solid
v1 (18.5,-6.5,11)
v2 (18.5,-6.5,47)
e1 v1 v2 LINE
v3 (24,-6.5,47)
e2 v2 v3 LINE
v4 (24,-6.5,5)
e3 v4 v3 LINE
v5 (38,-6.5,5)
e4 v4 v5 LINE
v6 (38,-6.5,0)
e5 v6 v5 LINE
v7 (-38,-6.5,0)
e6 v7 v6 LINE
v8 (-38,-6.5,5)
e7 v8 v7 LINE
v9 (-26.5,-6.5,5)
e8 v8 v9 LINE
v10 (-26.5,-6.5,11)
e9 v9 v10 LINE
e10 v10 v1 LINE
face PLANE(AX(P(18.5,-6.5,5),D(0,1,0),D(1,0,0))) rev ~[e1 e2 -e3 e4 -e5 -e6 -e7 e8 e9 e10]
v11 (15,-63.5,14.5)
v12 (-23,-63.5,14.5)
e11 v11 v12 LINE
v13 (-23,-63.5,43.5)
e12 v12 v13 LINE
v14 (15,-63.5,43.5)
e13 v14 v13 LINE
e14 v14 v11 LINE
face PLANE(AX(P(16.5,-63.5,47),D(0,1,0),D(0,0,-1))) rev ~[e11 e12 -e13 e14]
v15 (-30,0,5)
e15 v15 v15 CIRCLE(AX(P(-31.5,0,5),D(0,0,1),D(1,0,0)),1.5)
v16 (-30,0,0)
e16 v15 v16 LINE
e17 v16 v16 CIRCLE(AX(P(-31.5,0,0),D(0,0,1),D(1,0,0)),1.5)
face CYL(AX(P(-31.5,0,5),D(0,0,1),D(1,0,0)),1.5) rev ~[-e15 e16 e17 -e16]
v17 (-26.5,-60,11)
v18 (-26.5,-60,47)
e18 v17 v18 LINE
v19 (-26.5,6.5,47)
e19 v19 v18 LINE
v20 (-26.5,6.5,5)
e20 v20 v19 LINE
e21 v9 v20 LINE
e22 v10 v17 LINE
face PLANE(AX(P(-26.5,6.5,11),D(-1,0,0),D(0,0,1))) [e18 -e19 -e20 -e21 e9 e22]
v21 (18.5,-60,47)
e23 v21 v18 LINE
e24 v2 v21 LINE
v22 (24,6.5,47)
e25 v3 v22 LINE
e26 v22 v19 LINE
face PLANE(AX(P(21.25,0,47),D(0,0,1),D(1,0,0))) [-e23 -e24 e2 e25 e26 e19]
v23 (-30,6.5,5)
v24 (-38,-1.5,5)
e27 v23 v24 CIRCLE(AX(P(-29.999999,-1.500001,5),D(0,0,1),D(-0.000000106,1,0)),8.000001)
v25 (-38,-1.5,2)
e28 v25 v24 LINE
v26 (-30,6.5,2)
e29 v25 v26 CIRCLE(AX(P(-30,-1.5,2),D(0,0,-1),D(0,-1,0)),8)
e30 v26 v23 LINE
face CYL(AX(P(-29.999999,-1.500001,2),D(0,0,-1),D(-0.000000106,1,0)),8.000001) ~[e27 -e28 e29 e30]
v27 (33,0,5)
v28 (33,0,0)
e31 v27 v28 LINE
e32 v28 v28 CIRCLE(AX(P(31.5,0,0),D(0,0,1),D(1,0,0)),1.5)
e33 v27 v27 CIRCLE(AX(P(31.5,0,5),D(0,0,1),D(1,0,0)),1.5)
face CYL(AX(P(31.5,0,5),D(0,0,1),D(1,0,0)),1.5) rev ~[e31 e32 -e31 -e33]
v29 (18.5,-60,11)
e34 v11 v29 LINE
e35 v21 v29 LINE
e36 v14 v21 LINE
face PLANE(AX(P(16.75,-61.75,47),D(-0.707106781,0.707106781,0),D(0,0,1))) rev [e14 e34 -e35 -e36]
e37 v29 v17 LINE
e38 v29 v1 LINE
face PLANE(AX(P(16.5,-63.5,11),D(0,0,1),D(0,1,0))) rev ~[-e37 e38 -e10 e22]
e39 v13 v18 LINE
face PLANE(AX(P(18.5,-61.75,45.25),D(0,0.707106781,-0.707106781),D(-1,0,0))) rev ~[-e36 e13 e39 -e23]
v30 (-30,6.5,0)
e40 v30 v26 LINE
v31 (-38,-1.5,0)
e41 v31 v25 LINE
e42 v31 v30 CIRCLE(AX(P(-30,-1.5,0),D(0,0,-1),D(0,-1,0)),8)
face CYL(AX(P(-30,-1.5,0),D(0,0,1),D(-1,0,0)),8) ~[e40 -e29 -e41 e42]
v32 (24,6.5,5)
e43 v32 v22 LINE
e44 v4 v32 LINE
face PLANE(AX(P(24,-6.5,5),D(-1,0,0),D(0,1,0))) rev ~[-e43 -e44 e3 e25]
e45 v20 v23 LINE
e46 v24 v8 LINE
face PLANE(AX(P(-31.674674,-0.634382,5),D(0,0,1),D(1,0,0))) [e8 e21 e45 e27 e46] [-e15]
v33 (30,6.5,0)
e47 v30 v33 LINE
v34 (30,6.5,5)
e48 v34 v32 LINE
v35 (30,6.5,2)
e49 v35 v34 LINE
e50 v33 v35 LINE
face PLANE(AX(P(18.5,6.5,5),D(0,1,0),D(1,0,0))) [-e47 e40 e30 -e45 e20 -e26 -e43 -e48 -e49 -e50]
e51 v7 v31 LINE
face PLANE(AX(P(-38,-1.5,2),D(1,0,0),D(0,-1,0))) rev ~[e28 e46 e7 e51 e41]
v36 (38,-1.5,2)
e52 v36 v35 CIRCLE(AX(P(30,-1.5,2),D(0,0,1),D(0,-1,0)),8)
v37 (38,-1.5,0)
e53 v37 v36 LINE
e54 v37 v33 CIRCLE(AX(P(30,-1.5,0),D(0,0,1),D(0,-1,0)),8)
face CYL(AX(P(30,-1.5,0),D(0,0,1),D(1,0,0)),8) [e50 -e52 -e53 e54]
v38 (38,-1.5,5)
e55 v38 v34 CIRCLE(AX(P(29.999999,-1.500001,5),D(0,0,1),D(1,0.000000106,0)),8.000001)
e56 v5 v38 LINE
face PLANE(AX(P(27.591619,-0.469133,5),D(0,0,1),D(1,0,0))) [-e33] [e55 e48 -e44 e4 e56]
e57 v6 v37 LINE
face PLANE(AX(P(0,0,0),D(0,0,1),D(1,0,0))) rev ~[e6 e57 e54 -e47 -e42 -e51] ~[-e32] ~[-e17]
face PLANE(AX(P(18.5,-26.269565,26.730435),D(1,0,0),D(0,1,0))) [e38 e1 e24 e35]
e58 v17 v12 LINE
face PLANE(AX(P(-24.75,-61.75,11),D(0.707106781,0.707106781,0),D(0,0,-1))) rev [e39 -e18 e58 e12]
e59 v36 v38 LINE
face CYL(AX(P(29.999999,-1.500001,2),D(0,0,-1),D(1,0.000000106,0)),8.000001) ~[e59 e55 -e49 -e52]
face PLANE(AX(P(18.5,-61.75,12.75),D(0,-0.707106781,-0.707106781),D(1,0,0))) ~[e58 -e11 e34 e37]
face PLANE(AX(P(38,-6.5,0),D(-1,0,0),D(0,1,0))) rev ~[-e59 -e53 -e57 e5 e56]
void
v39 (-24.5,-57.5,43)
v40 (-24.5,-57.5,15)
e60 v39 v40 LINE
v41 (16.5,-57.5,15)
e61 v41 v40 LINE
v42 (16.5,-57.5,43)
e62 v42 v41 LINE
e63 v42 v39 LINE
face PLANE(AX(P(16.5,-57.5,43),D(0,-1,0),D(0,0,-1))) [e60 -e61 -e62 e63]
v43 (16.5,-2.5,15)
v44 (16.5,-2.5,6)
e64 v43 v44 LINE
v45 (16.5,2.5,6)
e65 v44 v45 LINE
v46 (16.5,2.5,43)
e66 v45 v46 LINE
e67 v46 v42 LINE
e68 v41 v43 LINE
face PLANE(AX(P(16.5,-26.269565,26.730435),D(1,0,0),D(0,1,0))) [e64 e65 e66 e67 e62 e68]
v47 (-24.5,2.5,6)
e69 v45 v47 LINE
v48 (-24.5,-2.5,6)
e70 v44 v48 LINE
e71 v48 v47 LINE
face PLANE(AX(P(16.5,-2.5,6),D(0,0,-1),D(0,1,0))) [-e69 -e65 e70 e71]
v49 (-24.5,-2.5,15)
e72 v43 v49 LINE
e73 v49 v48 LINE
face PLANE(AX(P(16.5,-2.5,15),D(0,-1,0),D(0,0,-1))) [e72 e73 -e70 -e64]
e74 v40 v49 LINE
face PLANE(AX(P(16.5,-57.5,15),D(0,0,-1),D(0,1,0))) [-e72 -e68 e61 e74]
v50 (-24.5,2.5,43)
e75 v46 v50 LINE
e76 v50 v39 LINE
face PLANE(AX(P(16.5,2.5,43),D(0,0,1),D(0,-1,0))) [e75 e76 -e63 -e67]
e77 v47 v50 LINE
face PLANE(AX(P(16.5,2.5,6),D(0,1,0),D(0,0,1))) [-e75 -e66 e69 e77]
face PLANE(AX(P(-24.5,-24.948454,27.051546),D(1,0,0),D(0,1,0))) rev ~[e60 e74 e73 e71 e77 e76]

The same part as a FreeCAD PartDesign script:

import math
import FreeCAD as App
import Part
import Sketcher
Q = App.Units.Quantity


def edges_at(feature, points):
    """Names of the edges that pass closest to the given points."""
    edges = feature.Shape.Edges
    near = lambda p: min(range(len(edges)), key=lambda i: edges[i].distToShape(Part.Vertex(*p))[0])
    return sorted({f"Edge{near(p) + 1}" for p in points})

doc = App.newDocument("Part")
body = doc.addObject("PartDesign::Body", "Body")

# Sketch on XY plane
sketch1 = doc.addObject("Sketcher::SketchObject", "Sketch")
body.addObject(sketch1)
sketch1.AttachmentSupport = (doc.XY_Plane, [""])
sketch1.MapMode = "FlatFace"
sketch1.addGeometry(Part.LineSegment(App.Vector(-38, 6, 0), App.Vector(-38, -6, 0)), False)
sketch1.addGeometry(Part.LineSegment(App.Vector(-38, -6, 0), App.Vector(38, -6, 0)), False)
sketch1.addGeometry(Part.LineSegment(App.Vector(38, -6, 0), App.Vector(38, 6, 0)), False)
sketch1.addGeometry(Part.LineSegment(App.Vector(38, 6, 0), App.Vector(-38, 6, 0)), False)
sketch1.addConstraint(Sketcher.Constraint("Coincident", 0, 2, 1, 1))
sketch1.addConstraint(Sketcher.Constraint("Coincident", 1, 2, 2, 1))
sketch1.addConstraint(Sketcher.Constraint("Coincident", 2, 2, 3, 1))
sketch1.addConstraint(Sketcher.Constraint("Coincident", 3, 2, 0, 1))
sketch1.addConstraint(Sketcher.Constraint("Vertical", 0))
sketch1.addConstraint(Sketcher.Constraint("Horizontal", 1))
sketch1.addConstraint(Sketcher.Constraint("Vertical", 2))
sketch1.addConstraint(Sketcher.Constraint("Horizontal", 3))
sketch1.addConstraint(Sketcher.Constraint("Symmetric", 0, 2, 2, 2, -1, 1))
sketch1.addConstraint(Sketcher.Constraint("DistanceX", 1, 1, 1, 2, Q("76 mm")))
sketch1.addConstraint(Sketcher.Constraint("DistanceY", 0, 2, 0, 1, Q("13 mm")))
pad1 = doc.addObject("PartDesign::Pad", "Pad")
body.addObject(pad1)
pad1.Profile = sketch1
pad1.Length = 2
doc.recompute()

fillet = doc.addObject("PartDesign::Fillet", "Fillet")
body.addObject(fillet)
fillet.Base = (pad1, edges_at(pad1, [(-38, 6.5, 1), (38, 6.5, 1)]))
fillet.Radius = 8

# Sketch on XY plane
sketch2 = doc.addObject("Sketcher::SketchObject", "Sketch001")
body.addObject(sketch2)
sketch2.AttachmentSupport = (doc.XY_Plane, [""])
sketch2.MapMode = "FlatFace"
sketch2.AttachmentOffset = App.Placement(App.Vector(0, 0, 2), App.Rotation())
sketch2.addGeometry(Part.LineSegment(App.Vector(-26, 6, 0), App.Vector(-26, -6, 0)), False)
sketch2.addGeometry(Part.LineSegment(App.Vector(-26, -6, 0), App.Vector(16, -6, 0)), False)
sketch2.addGeometry(Part.LineSegment(App.Vector(16, -6, 0), App.Vector(16, 6, 0)), False)
sketch2.addGeometry(Part.LineSegment(App.Vector(16, 6, 0), App.Vector(-26, 6, 0)), False)
sketch2.addConstraint(Sketcher.Constraint("Coincident", 0, 2, 1, 1))
sketch2.addConstraint(Sketcher.Constraint("Coincident", 1, 2, 2, 1))
sketch2.addConstraint(Sketcher.Constraint("Coincident", 2, 2, 3, 1))
sketch2.addConstraint(Sketcher.Constraint("Coincident", 3, 2, 0, 1))
sketch2.addConstraint(Sketcher.Constraint("Vertical", 0))
sketch2.addConstraint(Sketcher.Constraint("Horizontal", 1))
sketch2.addConstraint(Sketcher.Constraint("Vertical", 2))
sketch2.addConstraint(Sketcher.Constraint("Horizontal", 3))
sketch2.addConstraint(Sketcher.Constraint("DistanceX", 1, 1, 1, 2, Q("43 mm")))
sketch2.addConstraint(Sketcher.Constraint("DistanceY", 0, 2, 0, 1, Q("13 mm")))
sketch2.addConstraint(Sketcher.Constraint("DistanceX", 0, 2, -1, 1, Q("26.5 mm")))
sketch2.addConstraint(Sketcher.Constraint("DistanceY", 0, 2, -1, 1, Q("6.5 mm")))
pad2 = doc.addObject("PartDesign::Pad", "Pad001")
body.addObject(pad2)
pad2.Profile = sketch2
pad2.Length = 9

# Sketch on XZ plane
sketch3 = doc.addObject("Sketcher::SketchObject", "Sketch002")
body.addObject(sketch3)
sketch3.AttachmentSupport = (doc.XZ_Plane, [""])
sketch3.MapMode = "FlatFace"
sketch3.AttachmentOffset = App.Placement(App.Vector(0, 0, -6.5), App.Rotation())
sketch3.addGeometry(Part.LineSegment(App.Vector(16, 47, 0), App.Vector(16, 11, 0)), False)
sketch3.addGeometry(Part.LineSegment(App.Vector(16, 11, 0), App.Vector(-26, 11, 0)), False)
sketch3.addGeometry(Part.LineSegment(App.Vector(-26, 11, 0), App.Vector(-26, 47, 0)), False)
sketch3.addGeometry(Part.LineSegment(App.Vector(-26, 47, 0), App.Vector(16, 47, 0)), False)
sketch3.addConstraint(Sketcher.Constraint("Coincident", 0, 2, 1, 1))
sketch3.addConstraint(Sketcher.Constraint("Coincident", 1, 2, 2, 1))
sketch3.addConstraint(Sketcher.Constraint("Coincident", 2, 2, 3, 1))
sketch3.addConstraint(Sketcher.Constraint("Coincident", 3, 2, 0, 1))
sketch3.addConstraint(Sketcher.Constraint("Vertical", 0))
sketch3.addConstraint(Sketcher.Constraint("Horizontal", 1))
sketch3.addConstraint(Sketcher.Constraint("Vertical", 2))
sketch3.addConstraint(Sketcher.Constraint("Horizontal", 3))
sketch3.addConstraint(Sketcher.Constraint("DistanceX", 1, 2, 1, 1, Q("43 mm")))
sketch3.addConstraint(Sketcher.Constraint("DistanceY", 0, 2, 0, 1, Q("36 mm")))
sketch3.addConstraint(Sketcher.Constraint("DistanceY", -1, 1, 0, 2, Q("11 mm")))
sketch3.addConstraint(Sketcher.Constraint("DistanceX", -1, 1, 0, 2, Q("16.5 mm")))
pad3 = doc.addObject("PartDesign::Pad", "Pad002")
body.addObject(pad3)
pad3.Profile = sketch3
pad3.Length = 70

# Sketch on YZ plane
sketch4 = doc.addObject("Sketcher::SketchObject", "Sketch003")
body.addObject(sketch4)
sketch4.AttachmentSupport = (doc.YZ_Plane, [""])
sketch4.MapMode = "FlatFace"
sketch4.AttachmentOffset = App.Placement(App.Vector(0, 0, 16.5), App.Rotation())
sketch4.addGeometry(Part.LineSegment(App.Vector(-58, 15, 0), App.Vector(-2, 15, 0)), False)
sketch4.addGeometry(Part.LineSegment(App.Vector(-2, 15, 0), App.Vector(-2, 6, 0)), False)
sketch4.addGeometry(Part.LineSegment(App.Vector(-2, 6, 0), App.Vector(2, 6, 0)), False)
sketch4.addGeometry(Part.LineSegment(App.Vector(2, 6, 0), App.Vector(2, 43, 0)), False)
sketch4.addGeometry(Part.LineSegment(App.Vector(2, 43, 0), App.Vector(-58, 43, 0)), False)
sketch4.addGeometry(Part.LineSegment(App.Vector(-58, 43, 0), App.Vector(-58, 15, 0)), False)
sketch4.addConstraint(Sketcher.Constraint("Coincident", 0, 2, 1, 1))
sketch4.addConstraint(Sketcher.Constraint("Coincident", 1, 2, 2, 1))
sketch4.addConstraint(Sketcher.Constraint("Coincident", 2, 2, 3, 1))
sketch4.addConstraint(Sketcher.Constraint("Coincident", 3, 2, 4, 1))
sketch4.addConstraint(Sketcher.Constraint("Coincident", 4, 2, 5, 1))
sketch4.addConstraint(Sketcher.Constraint("Coincident", 5, 2, 0, 1))
sketch4.addConstraint(Sketcher.Constraint("Horizontal", 0))
sketch4.addConstraint(Sketcher.Constraint("Vertical", 1))
sketch4.addConstraint(Sketcher.Constraint("Horizontal", 2))
sketch4.addConstraint(Sketcher.Constraint("Vertical", 3))
sketch4.addConstraint(Sketcher.Constraint("Horizontal", 4))
sketch4.addConstraint(Sketcher.Constraint("Vertical", 5))
sketch4.addConstraint(Sketcher.Constraint("DistanceX", 0, 1, 0, 2, Q("55 mm")))
sketch4.addConstraint(Sketcher.Constraint("DistanceX", 2, 1, 2, 2, Q("5 mm")))
sketch4.addConstraint(Sketcher.Constraint("DistanceY", 1, 2, 1, 1, Q("9 mm")))
sketch4.addConstraint(Sketcher.Constraint("DistanceY", 3, 1, 3, 2, Q("37 mm")))
sketch4.addConstraint(Sketcher.Constraint("DistanceY", -1, 1, 0, 2, Q("15 mm")))
sketch4.addConstraint(Sketcher.Constraint("DistanceX", 0, 2, -1, 1, Q("2.5 mm")))
pocket1 = doc.addObject("PartDesign::Pocket", "Pocket")
body.addObject(pocket1)
pocket1.Profile = sketch4
pocket1.Length = 41

# Sketch on YZ plane
sketch5 = doc.addObject("Sketcher::SketchObject", "Sketch004")
body.addObject(sketch5)
sketch5.AttachmentSupport = (doc.YZ_Plane, [""])
sketch5.MapMode = "FlatFace"
sketch5.AttachmentOffset = App.Placement(App.Vector(0, 0, 16.5), App.Rotation())
sketch5.addGeometry(Part.LineSegment(App.Vector(-64, 11, 0), App.Vector(-6, 11, 0)), False)
sketch5.addGeometry(Part.LineSegment(App.Vector(-6, 11, 0), App.Vector(-6, 2, 0)), False)
sketch5.addGeometry(Part.LineSegment(App.Vector(-6, 2, 0), App.Vector(6, 2, 0)), False)
sketch5.addGeometry(Part.LineSegment(App.Vector(6, 2, 0), App.Vector(6, 47, 0)), False)
sketch5.addGeometry(Part.LineSegment(App.Vector(6, 47, 0), App.Vector(-64, 47, 0)), False)
sketch5.addGeometry(Part.LineSegment(App.Vector(-64, 47, 0), App.Vector(-64, 11, 0)), False)
sketch5.addConstraint(Sketcher.Constraint("Coincident", 0, 2, 1, 1))
sketch5.addConstraint(Sketcher.Constraint("Coincident", 1, 2, 2, 1))
sketch5.addConstraint(Sketcher.Constraint("Coincident", 2, 2, 3, 1))
sketch5.addConstraint(Sketcher.Constraint("Coincident", 3, 2, 4, 1))
sketch5.addConstraint(Sketcher.Constraint("Coincident", 4, 2, 5, 1))
sketch5.addConstraint(Sketcher.Constraint("Coincident", 5, 2, 0, 1))
sketch5.addConstraint(Sketcher.Constraint("Horizontal", 0))
sketch5.addConstraint(Sketcher.Constraint("Vertical", 1))
sketch5.addConstraint(Sketcher.Constraint("Horizontal", 2))
sketch5.addConstraint(Sketcher.Constraint("Vertical", 3))
sketch5.addConstraint(Sketcher.Constraint("Horizontal", 4))
sketch5.addConstraint(Sketcher.Constraint("Vertical", 5))
sketch5.addConstraint(Sketcher.Constraint("DistanceX", 0, 1, 0, 2, Q("57 mm")))
sketch5.addConstraint(Sketcher.Constraint("DistanceX", 2, 1, 2, 2, Q("13 mm")))
sketch5.addConstraint(Sketcher.Constraint("DistanceY", 1, 2, 1, 1, Q("9 mm")))
sketch5.addConstraint(Sketcher.Constraint("DistanceY", 3, 1, 3, 2, Q("45 mm")))
sketch5.addConstraint(Sketcher.Constraint("DistanceY", -1, 1, 0, 2, Q("11 mm")))
sketch5.addConstraint(Sketcher.Constraint("DistanceX", 0, 2, -1, 1, Q("6.5 mm")))
pad4 = doc.addObject("PartDesign::Pad", "Pad003")
body.addObject(pad4)
pad4.Profile = sketch5
pad4.Length = 2

# Sketch on XY plane
sketch6 = doc.addObject("Sketcher::SketchObject", "Sketch005")
body.addObject(sketch6)
sketch6.AttachmentSupport = (doc.XY_Plane, [""])
sketch6.MapMode = "FlatFace"
sketch6.AttachmentOffset = App.Placement(App.Vector(0, 0, 2), App.Rotation())
sketch6.addGeometry(Part.LineSegment(App.Vector(-38, -6.5, 0), App.Vector(-26.5, -6.5, 0)), False)
sketch6.addGeometry(Part.LineSegment(App.Vector(-26.5, -6.5, 0), App.Vector(-26.5, 6.5, 0)), False)
sketch6.addGeometry(Part.LineSegment(App.Vector(-26.5, 6.5, 0), App.Vector(-30, 6.5, 0)), False)
sketch6.addGeometry(Part.ArcOfCircle(Part.Circle(App.Vector(-30, -1.5, 0), App.Vector(0, 0, 1), 8), math.radians(90), math.radians(180)), False)
sketch6.addGeometry(Part.LineSegment(App.Vector(-38, -1.5, 0), App.Vector(-38, -6.5, 0)), False)
sketch6.addGeometry(Part.ArcOfCircle(Part.Circle(App.Vector(30, -1.5, 0), App.Vector(0, 0, 1), 8), math.radians(0), math.radians(90)), False)
sketch6.addGeometry(Part.LineSegment(App.Vector(30, 6.5, 0), App.Vector(18.5, 6.5, 0)), False)
sketch6.addGeometry(Part.LineSegment(App.Vector(18.5, 6.5, 0), App.Vector(18.5, -6.5, 0)), False)
sketch6.addGeometry(Part.LineSegment(App.Vector(18.5, -6.5, 0), App.Vector(38, -6.5, 0)), False)
sketch6.addGeometry(Part.LineSegment(App.Vector(38, -6.5, 0), App.Vector(38, -1.5, 0)), False)
sketch6.addConstraint(Sketcher.Constraint("Coincident", 0, 2, 1, 1))
sketch6.addConstraint(Sketcher.Constraint("Coincident", 1, 2, 2, 1))
sketch6.addConstraint(Sketcher.Constraint("Tangent", 2, 2, 3, 1))
sketch6.addConstraint(Sketcher.Constraint("Tangent", 3, 2, 4, 1))
sketch6.addConstraint(Sketcher.Constraint("Coincident", 4, 2, 0, 1))
sketch6.addConstraint(Sketcher.Constraint("Tangent", 5, 2, 6, 1))
sketch6.addConstraint(Sketcher.Constraint("Coincident", 6, 2, 7, 1))
sketch6.addConstraint(Sketcher.Constraint("Coincident", 7, 2, 8, 1))
sketch6.addConstraint(Sketcher.Constraint("Coincident", 8, 2, 9, 1))
sketch6.addConstraint(Sketcher.Constraint("Tangent", 9, 2, 5, 1))
sketch6.addConstraint(Sketcher.Constraint("Horizontal", 0))
sketch6.addConstraint(Sketcher.Constraint("Vertical", 1))
sketch6.addConstraint(Sketcher.Constraint("Horizontal", 2))
sketch6.addConstraint(Sketcher.Constraint("Vertical", 4))
sketch6.addConstraint(Sketcher.Constraint("Horizontal", 6))
sketch6.addConstraint(Sketcher.Constraint("Vertical", 7))
sketch6.addConstraint(Sketcher.Constraint("Horizontal", 8))
sketch6.addConstraint(Sketcher.Constraint("Vertical", 9))
sketch6.addConstraint(Sketcher.Constraint("Equal", 3, 5))
sketch6.addConstraint(Sketcher.Constraint("Symmetric", 3, 3, 5, 3, -2))
sketch6.addConstraint(Sketcher.Constraint("Horizontal", 4, 2, 7, 2))
sketch6.addConstraint(Sketcher.Constraint("Equal", 0, 6))
sketch6.addConstraint(Sketcher.Constraint("Radius", 3, Q("8.000001 mm")))
sketch6.addConstraint(Sketcher.Constraint("DistanceY", 1, 1, 1, 2, Q("13 mm")))
sketch6.addConstraint(Sketcher.Constraint("DistanceX", 0, 1, 0, 2, Q("11.5 mm")))
sketch6.addConstraint(Sketcher.Constraint("DistanceX", 3, 3, -1, 1, Q("29.999999 mm")))
sketch6.addConstraint(Sketcher.Constraint("DistanceY", 3, 3, -1, 1, Q("1.500001 mm")))
pad5 = doc.addObject("PartDesign::Pad", "Pad004")
body.addObject(pad5)
pad5.Profile = sketch6
pad5.Length = 3

# Sketch on XY plane
sketch7 = doc.addObject("Sketcher::SketchObject", "Sketch006")
body.addObject(sketch7)
sketch7.AttachmentSupport = (doc.XY_Plane, [""])
sketch7.MapMode = "FlatFace"
sketch7.AttachmentOffset = App.Placement(App.Vector(0, 0, 5), App.Rotation())
sketch7.addGeometry(Part.Circle(App.Vector(-31.5, 0, 0), App.Vector(0, 0, 1), 1.5), False)
sketch7.addGeometry(Part.Circle(App.Vector(31.5, 0, 0), App.Vector(0, 0, 1), 1.5), False)
sketch7.addConstraint(Sketcher.Constraint("Equal", 0, 1))
sketch7.addConstraint(Sketcher.Constraint("Symmetric", 0, 3, 1, 3, -1, 1))
sketch7.addConstraint(Sketcher.Constraint("PointOnObject", 0, 3, -1))
sketch7.addConstraint(Sketcher.Constraint("Diameter", 0, Q("3 mm")))
sketch7.addConstraint(Sketcher.Constraint("DistanceX", 0, 3, 1, 3, Q("63 mm")))
pocket2 = doc.addObject("PartDesign::Pocket", "Pocket001")
body.addObject(pocket2)
pocket2.Profile = sketch7
pocket2.Length = 25

# Sketch on XY plane
sketch8 = doc.addObject("Sketcher::SketchObject", "Sketch007")
body.addObject(sketch8)
sketch8.AttachmentSupport = (doc.XY_Plane, [""])
sketch8.MapMode = "FlatFace"
sketch8.AttachmentOffset = App.Placement(App.Vector(0, 0, 5), App.Rotation())
sketch8.addGeometry(Part.LineSegment(App.Vector(18, 6, 0), App.Vector(18, -6, 0)), False)
sketch8.addGeometry(Part.LineSegment(App.Vector(18, -6, 0), App.Vector(24, -6, 0)), False)
sketch8.addGeometry(Part.LineSegment(App.Vector(24, -6, 0), App.Vector(24, 6, 0)), False)
sketch8.addGeometry(Part.LineSegment(App.Vector(24, 6, 0), App.Vector(18, 6, 0)), False)
sketch8.addConstraint(Sketcher.Constraint("Coincident", 0, 2, 1, 1))
sketch8.addConstraint(Sketcher.Constraint("Coincident", 1, 2, 2, 1))
sketch8.addConstraint(Sketcher.Constraint("Coincident", 2, 2, 3, 1))
sketch8.addConstraint(Sketcher.Constraint("Coincident", 3, 2, 0, 1))
sketch8.addConstraint(Sketcher.Constraint("Vertical", 0))
sketch8.addConstraint(Sketcher.Constraint("Horizontal", 1))
sketch8.addConstraint(Sketcher.Constraint("Vertical", 2))
sketch8.addConstraint(Sketcher.Constraint("Horizontal", 3))
sketch8.addConstraint(Sketcher.Constraint("DistanceY", 0, 2, 0, 1, Q("13 mm")))
sketch8.addConstraint(Sketcher.Constraint("DistanceX", 1, 1, 1, 2, Q("5.5 mm")))
sketch8.addConstraint(Sketcher.Constraint("DistanceX", -1, 1, 1, 2, Q("24 mm")))
sketch8.addConstraint(Sketcher.Constraint("DistanceY", 0, 2, -1, 1, Q("6.5 mm")))
pad6 = doc.addObject("PartDesign::Pad", "Pad005")
body.addObject(pad6)
pad6.Profile = sketch8
pad6.Length = 42
doc.recompute()

chamfer = doc.addObject("PartDesign::Chamfer", "Chamfer")
body.addObject(chamfer)
chamfer.Base = (pad6, edges_at(pad6, [
    (18.5, -63.5, 29),
    (-4, -63.5, 47),
    (-4, -63.5, 11),
    (-26.5, -63.5, 29),
]))
chamfer.Size = 3.5

doc.recompute()
